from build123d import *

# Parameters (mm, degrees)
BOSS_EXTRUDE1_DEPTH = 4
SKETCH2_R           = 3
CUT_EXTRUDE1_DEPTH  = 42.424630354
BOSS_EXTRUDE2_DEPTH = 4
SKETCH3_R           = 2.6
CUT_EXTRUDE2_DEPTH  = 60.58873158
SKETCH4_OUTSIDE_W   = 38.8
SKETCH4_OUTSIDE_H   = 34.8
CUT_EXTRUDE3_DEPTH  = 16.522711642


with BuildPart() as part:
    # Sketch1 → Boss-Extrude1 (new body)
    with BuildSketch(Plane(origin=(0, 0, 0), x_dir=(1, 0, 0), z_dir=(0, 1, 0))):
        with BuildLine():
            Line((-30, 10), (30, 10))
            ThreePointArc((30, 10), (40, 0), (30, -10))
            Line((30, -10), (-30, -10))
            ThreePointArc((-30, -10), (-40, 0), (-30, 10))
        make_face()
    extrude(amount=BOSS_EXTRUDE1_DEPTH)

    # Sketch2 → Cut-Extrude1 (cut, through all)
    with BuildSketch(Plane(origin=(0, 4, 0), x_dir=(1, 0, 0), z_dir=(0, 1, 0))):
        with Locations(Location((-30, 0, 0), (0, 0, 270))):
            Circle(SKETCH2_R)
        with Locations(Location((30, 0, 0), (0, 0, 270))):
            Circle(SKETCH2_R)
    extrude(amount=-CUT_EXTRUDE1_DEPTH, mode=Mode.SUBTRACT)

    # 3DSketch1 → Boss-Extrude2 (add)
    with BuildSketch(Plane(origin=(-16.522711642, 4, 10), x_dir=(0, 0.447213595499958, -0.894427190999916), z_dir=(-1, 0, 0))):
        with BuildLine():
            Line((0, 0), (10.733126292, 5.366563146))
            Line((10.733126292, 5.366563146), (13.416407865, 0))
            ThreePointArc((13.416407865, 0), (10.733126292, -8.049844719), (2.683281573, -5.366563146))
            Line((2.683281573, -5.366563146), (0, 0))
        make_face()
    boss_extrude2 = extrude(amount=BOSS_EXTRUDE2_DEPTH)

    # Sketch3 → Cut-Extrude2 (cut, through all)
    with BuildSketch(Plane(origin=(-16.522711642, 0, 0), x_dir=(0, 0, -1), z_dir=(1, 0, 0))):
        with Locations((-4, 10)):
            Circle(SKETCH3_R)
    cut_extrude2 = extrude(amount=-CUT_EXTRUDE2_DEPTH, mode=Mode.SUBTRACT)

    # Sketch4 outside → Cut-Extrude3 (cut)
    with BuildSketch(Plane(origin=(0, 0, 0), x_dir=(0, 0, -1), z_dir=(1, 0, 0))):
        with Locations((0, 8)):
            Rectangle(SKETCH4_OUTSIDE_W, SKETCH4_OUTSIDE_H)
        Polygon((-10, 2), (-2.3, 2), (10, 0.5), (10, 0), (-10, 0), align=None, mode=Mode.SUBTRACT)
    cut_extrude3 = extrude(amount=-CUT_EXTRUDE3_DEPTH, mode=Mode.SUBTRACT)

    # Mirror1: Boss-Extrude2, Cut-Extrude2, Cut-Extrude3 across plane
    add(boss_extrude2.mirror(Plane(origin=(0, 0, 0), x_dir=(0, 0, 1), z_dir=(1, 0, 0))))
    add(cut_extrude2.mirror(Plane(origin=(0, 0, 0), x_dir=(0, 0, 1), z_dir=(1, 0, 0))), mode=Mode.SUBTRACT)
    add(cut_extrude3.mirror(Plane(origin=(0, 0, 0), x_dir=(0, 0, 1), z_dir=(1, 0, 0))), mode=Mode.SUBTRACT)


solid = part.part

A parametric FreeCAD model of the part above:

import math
import FreeCAD as App
import Part
import Sketcher
from FreeCAD import Vector

doc = App.newDocument("Part")
body = doc.addObject("PartDesign::Body", "Body")

# Sketch on XZ plane
sketch1 = body.newObject("Sketcher::SketchObject", "Sketch")
sketch1.AttachmentSupport = (doc.getObject("XZ_Plane"), [""])
sketch1.MapMode = "FlatFace"
sketch1.addGeometry([
    Part.LineSegment(Vector(30, -10, 0), Vector(-30, -10, 0)),
    Part.ArcOfCircle(Part.Circle(Vector(-30, 0, 0), Vector(0, 0, 1), 10), math.radians(90), math.radians(270)),
    Part.LineSegment(Vector(-30, 10, 0), Vector(30, 10, 0)),
    Part.ArcOfCircle(Part.Circle(Vector(30, 0, 0), Vector(0, 0, 1), 10), math.radians(-90), math.radians(90)),
], False)
sketch1.addConstraint([
    Sketcher.Constraint("Tangent", 0, 2, 1, 2),
    Sketcher.Constraint("Tangent", 1, 1, 2, 1),
    Sketcher.Constraint("Tangent", 2, 2, 3, 2),
    Sketcher.Constraint("Tangent", 3, 1, 0, 1),
    Sketcher.Constraint("Horizontal", 0),
    Sketcher.Constraint("Horizontal", 2),
    Sketcher.Constraint("Symmetric", 1, 3, 3, 3, -1, 1),
    Sketcher.Constraint("Radius", 1, 10.0),
    Sketcher.Constraint("DistanceX", 0, 2, 0, 1, 60.0),
])
pad1 = body.newObject("PartDesign::Pad", "Pad")
pad1.Profile = sketch1
pad1.Length = 4
pad1.Reversed = True

# Sketch on XZ plane
sketch2 = body.newObject("Sketcher::SketchObject", "Sketch001")
sketch2.AttachmentSupport = (doc.getObject("XZ_Plane"), [""])
sketch2.MapMode = "FlatFace"
sketch2.AttachmentOffset = App.Placement(Vector(0, 0, -4), App.Rotation())
sketch2.addGeometry([
    Part.Circle(Vector(-30, 0, 0), Vector(0, 0, 1), 3),
    Part.Circle(Vector(30, 0, 0), Vector(0, 0, 1), 3),
], False)
sketch2.addConstraint([
    Sketcher.Constraint("Equal", 0, 1),
    Sketcher.Constraint("Symmetric", 0, 3, 1, 3, -1, 1),
    Sketcher.Constraint("PointOnObject", 0, 3, -1),
    Sketcher.Constraint("Diameter", 0, 6.0),
    Sketcher.Constraint("DistanceX", 0, 3, -1, 1, 30.0),
])
pocket1 = body.newObject("PartDesign::Pocket", "Pocket")
pocket1.Profile = sketch2
pocket1.Type = "ThroughAll"
pocket1.Reversed = True

# Sketch on YZ plane
sketch3 = body.newObject("Sketcher::SketchObject", "Sketch002")
sketch3.AttachmentSupport = (doc.getObject("YZ_Plane"), [""])
sketch3.MapMode = "FlatFace"
sketch3.AttachmentOffset = App.Placement(Vector(0, 0, -16.522712), App.Rotation())
sketch3.addGeometry([
    Part.LineSegment(Vector(4, -2, 0), Vector(4, 10, 0)),
    Part.LineSegment(Vector(4, 10, 0), Vector(10, 10, 0)),
    Part.ArcOfCircle(Part.Circle(Vector(10, 4, 0), Vector(0, 0, 1), 6), math.radians(-90), math.radians(90)),
    Part.LineSegment(Vector(10, -2, 0), Vector(4, -2, 0)),
], False)
sketch3.addConstraint([
    Sketcher.Constraint("Coincident", 0, 2, 1, 1),
    Sketcher.Constraint("Tangent", 1, 2, 2, 2),
    Sketcher.Constraint("Tangent", 2, 1, 3, 1),
    Sketcher.Constraint("Coincident", 3, 2, 0, 1),
    Sketcher.Constraint("Vertical", 0),
    Sketcher.Constraint("Horizontal", 1),
    Sketcher.Constraint("Horizontal", 3),
    Sketcher.Constraint("Radius", 2, 6.0),
    Sketcher.Constraint("DistanceX", 1, 1, 1, 2, 6.0),
    Sketcher.Constraint("DistanceX", -1, 1, 2, 3, 10.0),
    Sketcher.Constraint("DistanceY", -1, 1, 2, 3, 4.0),
])
pad2 = body.newObject("PartDesign::Pad", "Pad001")
pad2.Profile = sketch3
pad2.Length = 4
pad2.Reversed = True

# Sketch on YZ plane
sketch4 = body.newObject("Sketcher::SketchObject", "Sketch003")
sketch4.AttachmentSupport = (doc.getObject("YZ_Plane"), [""])
sketch4.MapMode = "FlatFace"
sketch4.AttachmentOffset = App.Placement(Vector(0, 0, -16.522712), App.Rotation())
sketch4.addGeometry(Part.Circle(Vector(10, 4, 0), Vector(0, 0, 1), 2.6), False)
sketch4.addConstraint([
    Sketcher.Constraint("Diameter", 0, 5.2),
    Sketcher.Constraint("DistanceX", -1, 1, 0, 3, 10.0),
    Sketcher.Constraint("DistanceY", -1, 1, 0, 3, 4.0),
])
pocket2 = body.newObject("PartDesign::Pocket", "Pocket001")
pocket2.Profile = sketch4
pocket2.Type = "ThroughAll"

# Sketch on YZ plane
sketch5 = body.newObject("Sketcher::SketchObject", "Sketch004")
sketch5.AttachmentSupport = (doc.getObject("YZ_Plane"), [""])
sketch5.MapMode = "FlatFace"
sketch5.addGeometry([
    Part.LineSegment(Vector(25.4, 19.4, 0), Vector(-9.4, 19.4, 0)),  # 0
    Part.LineSegment(Vector(-9.4, 19.4, 0), Vector(-9.4, -19.4, 0)),  # 1
    Part.LineSegment(Vector(-9.4, -19.4, 0), Vector(25.4, -19.4, 0)),  # 2
    Part.LineSegment(Vector(25.4, -19.4, 0), Vector(25.4, 19.4, 0)),  # 3
    Part.LineSegment(Vector(0, 10, 0), Vector(2, 10, 0)),  # 4
    Part.LineSegment(Vector(2, 10, 0), Vector(2, 2.3, 0)),  # 5
    Part.LineSegment(Vector(2, 2.3, 0), Vector(0.5, -10, 0)),  # 6
    Part.LineSegment(Vector(0.5, -10, 0), Vector(0, -10, 0)),  # 7
    Part.LineSegment(Vector(0, -10, 0), Vector(0, 10, 0)),  # 8
], False)
sketch5.addConstraint([
    Sketcher.Constraint("Coincident", 0, 2, 1, 1),
    Sketcher.Constraint("Coincident", 1, 2, 2, 1),
    Sketcher.Constraint("Coincident", 2, 2, 3, 1),
    Sketcher.Constraint("Coincident", 3, 2, 0, 1),
    Sketcher.Constraint("Coincident", 4, 2, 5, 1),
    Sketcher.Constraint("Coincident", 5, 2, 6, 1),
    Sketcher.Constraint("Coincident", 6, 2, 7, 1),
    Sketcher.Constraint("Coincident", 7, 2, 8, 1),
    Sketcher.Constraint("Coincident", 8, 2, 4, 1),
    Sketcher.Constraint("Horizontal", 0),
    Sketcher.Constraint("Vertical", 1),
    Sketcher.Constraint("Horizontal", 2),
    Sketcher.Constraint("Vertical", 3),
    Sketcher.Constraint("Horizontal", 4),
    Sketcher.Constraint("Vertical", 5),
    Sketcher.Constraint("Horizontal", 7),
    Sketcher.Constraint("Vertical", 8),
    Sketcher.Constraint("Symmetric", 7, 2, 8, 2, -1, 1),
    Sketcher.Constraint("DistanceX", 4, 1, 4, 2, 2.0),
    Sketcher.Constraint("DistanceY", 8, 1, 8, 2, 20.0),
    Sketcher.Constraint("DistanceX", 0, 2, 0, 1, 34.8),
    Sketcher.Constraint("DistanceX", 7, 2, 7, 1, 0.5),
    Sketcher.Constraint("DistanceY", 1, 2, 1, 1, 38.8),
    Sketcher.Constraint("DistanceY", 5, 2, 5, 1, 7.7),
    Sketcher.Constraint("DistanceX", 0, 2, -1, 1, 9.4),
    Sketcher.Constraint("DistanceY", -1, 1, 0, 2, 19.4),
])
pocket3 = body.newObject("PartDesign::Pocket", "Pocket002")
pocket3.Profile = sketch5
pocket3.Length = 16.522712
doc.recompute()

mirrored = body.newObject("PartDesign::Mirrored", "Mirrored")
mirrored.Originals = [pad2, pocket2, pocket3]
mirrored.MirrorPlane = (doc.getObject("YZ_Plane"), [""])
body.Tip = mirrored

doc.recompute()
